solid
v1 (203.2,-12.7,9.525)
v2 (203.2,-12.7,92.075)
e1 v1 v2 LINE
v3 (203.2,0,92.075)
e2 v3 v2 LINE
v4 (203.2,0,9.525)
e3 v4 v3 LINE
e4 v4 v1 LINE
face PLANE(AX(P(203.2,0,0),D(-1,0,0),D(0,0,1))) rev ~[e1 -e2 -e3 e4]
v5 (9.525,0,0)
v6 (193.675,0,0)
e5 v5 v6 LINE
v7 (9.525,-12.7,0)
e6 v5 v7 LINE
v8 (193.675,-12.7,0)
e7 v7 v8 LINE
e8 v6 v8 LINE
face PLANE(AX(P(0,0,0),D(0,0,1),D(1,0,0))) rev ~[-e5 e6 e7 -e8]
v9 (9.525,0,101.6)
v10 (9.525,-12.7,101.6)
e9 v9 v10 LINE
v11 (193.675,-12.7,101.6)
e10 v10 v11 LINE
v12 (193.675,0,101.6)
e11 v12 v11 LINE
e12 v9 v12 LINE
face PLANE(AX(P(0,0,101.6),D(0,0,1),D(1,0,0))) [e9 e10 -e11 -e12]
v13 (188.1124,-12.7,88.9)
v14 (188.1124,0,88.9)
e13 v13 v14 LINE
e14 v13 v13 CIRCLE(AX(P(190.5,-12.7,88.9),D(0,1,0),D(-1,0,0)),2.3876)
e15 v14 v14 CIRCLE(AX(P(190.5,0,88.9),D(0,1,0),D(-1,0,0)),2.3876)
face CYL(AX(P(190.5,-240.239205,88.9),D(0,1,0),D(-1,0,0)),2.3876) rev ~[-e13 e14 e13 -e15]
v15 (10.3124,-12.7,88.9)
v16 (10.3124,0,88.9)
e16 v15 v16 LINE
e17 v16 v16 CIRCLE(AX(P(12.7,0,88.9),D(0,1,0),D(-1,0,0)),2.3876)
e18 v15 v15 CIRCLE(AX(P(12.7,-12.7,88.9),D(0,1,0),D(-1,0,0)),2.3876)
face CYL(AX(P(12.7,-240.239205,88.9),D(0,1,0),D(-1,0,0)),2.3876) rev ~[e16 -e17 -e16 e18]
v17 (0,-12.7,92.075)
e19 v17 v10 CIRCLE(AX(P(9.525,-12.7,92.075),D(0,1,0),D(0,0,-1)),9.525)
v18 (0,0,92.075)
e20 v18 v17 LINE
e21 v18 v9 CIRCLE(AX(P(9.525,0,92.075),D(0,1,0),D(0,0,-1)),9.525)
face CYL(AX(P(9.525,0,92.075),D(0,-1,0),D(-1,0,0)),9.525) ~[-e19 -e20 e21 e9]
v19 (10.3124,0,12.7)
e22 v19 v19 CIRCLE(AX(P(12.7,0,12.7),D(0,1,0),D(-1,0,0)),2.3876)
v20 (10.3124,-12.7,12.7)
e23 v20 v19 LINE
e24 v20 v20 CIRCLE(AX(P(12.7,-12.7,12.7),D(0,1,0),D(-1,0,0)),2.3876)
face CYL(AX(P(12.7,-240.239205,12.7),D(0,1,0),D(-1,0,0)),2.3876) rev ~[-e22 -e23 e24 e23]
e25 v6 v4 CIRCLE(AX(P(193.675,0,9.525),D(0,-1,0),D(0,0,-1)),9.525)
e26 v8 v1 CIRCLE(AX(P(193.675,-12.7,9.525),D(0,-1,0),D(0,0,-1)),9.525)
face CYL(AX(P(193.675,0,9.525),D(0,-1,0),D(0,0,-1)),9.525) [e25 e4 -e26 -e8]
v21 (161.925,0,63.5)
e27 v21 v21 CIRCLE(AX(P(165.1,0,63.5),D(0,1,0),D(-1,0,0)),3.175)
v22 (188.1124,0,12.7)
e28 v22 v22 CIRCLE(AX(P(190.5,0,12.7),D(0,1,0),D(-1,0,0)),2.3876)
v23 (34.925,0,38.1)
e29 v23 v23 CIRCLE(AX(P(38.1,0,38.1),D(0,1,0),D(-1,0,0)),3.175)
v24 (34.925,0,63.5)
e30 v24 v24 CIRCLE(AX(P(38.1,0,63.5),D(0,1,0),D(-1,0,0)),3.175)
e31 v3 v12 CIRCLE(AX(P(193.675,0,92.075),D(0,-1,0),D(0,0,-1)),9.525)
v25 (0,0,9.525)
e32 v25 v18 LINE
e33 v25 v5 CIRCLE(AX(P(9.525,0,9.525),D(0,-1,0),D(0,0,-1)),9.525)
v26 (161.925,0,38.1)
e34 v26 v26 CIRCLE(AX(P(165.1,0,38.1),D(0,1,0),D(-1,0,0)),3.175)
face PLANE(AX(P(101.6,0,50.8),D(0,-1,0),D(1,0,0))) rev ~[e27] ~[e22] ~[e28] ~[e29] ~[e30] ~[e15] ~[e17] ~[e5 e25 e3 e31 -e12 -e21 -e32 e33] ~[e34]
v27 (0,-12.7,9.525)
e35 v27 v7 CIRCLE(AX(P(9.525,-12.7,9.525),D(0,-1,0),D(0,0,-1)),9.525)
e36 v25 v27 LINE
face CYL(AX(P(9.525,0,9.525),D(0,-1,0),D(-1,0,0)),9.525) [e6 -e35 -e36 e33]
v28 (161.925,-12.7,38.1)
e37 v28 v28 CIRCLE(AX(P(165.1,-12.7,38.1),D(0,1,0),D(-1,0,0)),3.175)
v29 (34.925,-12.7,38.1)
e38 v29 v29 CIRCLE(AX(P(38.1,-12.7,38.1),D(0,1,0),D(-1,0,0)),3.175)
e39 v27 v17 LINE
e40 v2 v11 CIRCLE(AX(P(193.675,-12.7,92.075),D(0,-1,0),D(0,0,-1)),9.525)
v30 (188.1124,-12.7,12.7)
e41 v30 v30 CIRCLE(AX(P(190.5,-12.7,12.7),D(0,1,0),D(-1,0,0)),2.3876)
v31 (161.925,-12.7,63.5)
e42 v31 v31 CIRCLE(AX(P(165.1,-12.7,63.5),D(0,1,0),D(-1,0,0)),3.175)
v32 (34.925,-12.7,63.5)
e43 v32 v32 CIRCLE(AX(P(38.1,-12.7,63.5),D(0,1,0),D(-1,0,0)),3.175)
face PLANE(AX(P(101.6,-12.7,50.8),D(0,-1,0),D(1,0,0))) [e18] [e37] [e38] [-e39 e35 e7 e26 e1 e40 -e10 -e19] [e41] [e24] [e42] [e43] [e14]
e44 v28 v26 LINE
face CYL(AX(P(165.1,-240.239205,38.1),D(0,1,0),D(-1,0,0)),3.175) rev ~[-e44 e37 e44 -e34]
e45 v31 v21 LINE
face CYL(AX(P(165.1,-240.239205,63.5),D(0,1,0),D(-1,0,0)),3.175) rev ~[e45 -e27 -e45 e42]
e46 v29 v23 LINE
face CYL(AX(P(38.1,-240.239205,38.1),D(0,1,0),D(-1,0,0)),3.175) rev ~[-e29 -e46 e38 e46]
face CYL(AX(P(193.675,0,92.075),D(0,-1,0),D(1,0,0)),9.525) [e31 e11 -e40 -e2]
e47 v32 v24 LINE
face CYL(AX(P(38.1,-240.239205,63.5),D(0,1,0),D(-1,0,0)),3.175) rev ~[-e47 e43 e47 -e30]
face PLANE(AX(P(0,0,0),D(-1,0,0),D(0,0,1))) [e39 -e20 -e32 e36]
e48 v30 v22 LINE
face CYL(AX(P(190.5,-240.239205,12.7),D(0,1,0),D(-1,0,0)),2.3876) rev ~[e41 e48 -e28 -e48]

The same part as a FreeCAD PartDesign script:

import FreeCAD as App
import Part
import Sketcher
Q = App.Units.Quantity


def edges_at(feature, points):
    """Names of the edges that pass closest to the given points."""
    edges = feature.Shape.Edges
    near = lambda p: min(range(len(edges)), key=lambda i: edges[i].distToShape(Part.Vertex(*p))[0])
    return sorted({f"Edge{near(p) + 1}" for p in points})


def add_polygon(sketch, points):
    """Adds a closed chain of lines whose ends are joined by coincident constraints."""
    first, n = sketch.GeometryCount, len(points)
    for a, b in zip(points, points[1:] + points[:1]):
        sketch.addGeometry(Part.LineSegment(App.Vector(*a, 0), App.Vector(*b, 0)), False)
    for i in range(n):
        sketch.addConstraint(Sketcher.Constraint("Coincident", first + i, 2, first + (i + 1) % n, 1))

doc = App.newDocument("Part")
body = doc.addObject("PartDesign::Body", "Body")

sketch1 = doc.addObject("Sketcher::SketchObject", "Sketch")
body.addObject(sketch1)
sketch1.AttachmentSupport = (doc.XZ_Plane, [""])
sketch1.MapMode = "FlatFace"
add_polygon(sketch1, [(0, 102), (0, 0), (203, 0), (203, 102)])
sketch1.addConstraint([
    Sketcher.Constraint("Vertical", 0),
    Sketcher.Constraint("Horizontal", 1),
    Sketcher.Constraint("Vertical", 2),
    Sketcher.Constraint("Horizontal", 3),
    Sketcher.Constraint("Coincident", 0, 2, -1, 1),
    Sketcher.Constraint("DistanceX", 1, 1, 1, 2, Q("8 in")),
    Sketcher.Constraint("DistanceY", 0, 2, 0, 1, Q("4 in")),
])
pad1 = doc.addObject("PartDesign::Pad", "Pad")
body.addObject(pad1)
pad1.Profile = sketch1
pad1.Length = Q("0.5 in")
doc.recompute()

fillet = doc.addObject("PartDesign::Fillet", "Fillet")
body.addObject(fillet)
fillet.Base = (pad1, edges_at(pad1, [
    (0, -6.35, 101.6),
    (0, -6.35, 0),
    (203.2, -6.35, 0),
    (203.2, -6.35, 101.6),
]))
fillet.Radius = Q("0.375 in")

sketch2 = doc.addObject("Sketcher::SketchObject", "Sketch001")
body.addObject(sketch2)
sketch2.AttachmentSupport = (doc.XZ_Plane, [""])
sketch2.MapMode = "FlatFace"
sketch2.AttachmentOffset = App.Placement(App.Vector(0, 0, 0.5 * 25.4), App.Rotation())
sketch2.addGeometry([
    Part.Circle(App.Vector(12.7, 88.9, 0), App.Vector(0, 0, 1), 2.4),
    Part.Circle(App.Vector(12.7, 12.7, 0), App.Vector(0, 0, 1), 2.4),
    Part.Circle(App.Vector(190.5, 12.7, 0), App.Vector(0, 0, 1), 2.4),
    Part.Circle(App.Vector(190.5, 88.9, 0), App.Vector(0, 0, 1), 2.4),
], False)
sketch2.addConstraint([
    Sketcher.Constraint("Equal", 0, 1),
    Sketcher.Constraint("Equal", 1, 2),
    Sketcher.Constraint("Equal", 2, 3),
    Sketcher.Constraint("Horizontal", 1, 3, 2, 3),
    Sketcher.Constraint("Horizontal", 0, 3, 3, 3),
    Sketcher.Constraint("Vertical", 0, 3, 1, 3),
    Sketcher.Constraint("Vertical", 2, 3, 3, 3),
    Sketcher.Constraint("Diameter", 0, Q("0.188 in")),
    Sketcher.Constraint("DistanceY", 1, 3, 0, 3, Q("3 in")),
    Sketcher.Constraint("DistanceX", 1, 3, 2, 3, Q("7 in")),
    Sketcher.Constraint("DistanceX", -1, 1, 0, 3, Q("0.5 in")),
    Sketcher.Constraint("DistanceY", -1, 1, 0, 3, Q("3.5 in")),
])
doc.recompute()
hole = doc.addObject("PartDesign::Hole", "Hole")
body.addObject(hole)
hole.Profile = sketch2
hole.ThreadType = "None"
hole.Diameter = Q("0.188 in")
hole.DepthType = "ThroughAll"

sketch3 = doc.addObject("Sketcher::SketchObject", "Sketch002")
body.addObject(sketch3)
sketch3.AttachmentSupport = (doc.XZ_Plane, [""])
sketch3.MapMode = "FlatFace"
sketch3.AttachmentOffset = App.Placement(App.Vector(0, 0, 0.5 * 25.4), App.Rotation())
sketch3.addGeometry([
    Part.Circle(App.Vector(38.1, 63.5, 0), App.Vector(0, 0, 1), 3.2),
    Part.Circle(App.Vector(38.1, 38.1, 0), App.Vector(0, 0, 1), 3.2),
    Part.Circle(App.Vector(165.1, 38.1, 0), App.Vector(0, 0, 1), 3.2),
    Part.Circle(App.Vector(165.1, 63.5, 0), App.Vector(0, 0, 1), 3.2),
], False)
sketch3.addConstraint([
    Sketcher.Constraint("Equal", 0, 1),
    Sketcher.Constraint("Equal", 1, 2),
    Sketcher.Constraint("Equal", 2, 3),
    Sketcher.Constraint("Horizontal", 1, 3, 2, 3),
    Sketcher.Constraint("Horizontal", 0, 3, 3, 3),
    Sketcher.Constraint("Vertical", 0, 3, 1, 3),
    Sketcher.Constraint("Vertical", 2, 3, 3, 3),
    Sketcher.Constraint("Diameter", 0, Q("0.25 in")),
    Sketcher.Constraint("DistanceY", 1, 3, 0, 3, Q("1 in")),
    Sketcher.Constraint("DistanceX", 1, 3, 2, 3, Q("5 in")),
    Sketcher.Constraint("DistanceX", -1, 1, 0, 3, Q("1.5 in")),
    Sketcher.Constraint("DistanceY", -1, 1, 0, 3, Q("2.5 in")),
])
doc.recompute()
hole2 = doc.addObject("PartDesign::Hole", "Hole001")
body.addObject(hole2)
hole2.Profile = sketch3
hole2.ThreadType = "None"
hole2.Diameter = Q("0.25 in")
hole2.DepthType = "ThroughAll"

doc.recompute()
